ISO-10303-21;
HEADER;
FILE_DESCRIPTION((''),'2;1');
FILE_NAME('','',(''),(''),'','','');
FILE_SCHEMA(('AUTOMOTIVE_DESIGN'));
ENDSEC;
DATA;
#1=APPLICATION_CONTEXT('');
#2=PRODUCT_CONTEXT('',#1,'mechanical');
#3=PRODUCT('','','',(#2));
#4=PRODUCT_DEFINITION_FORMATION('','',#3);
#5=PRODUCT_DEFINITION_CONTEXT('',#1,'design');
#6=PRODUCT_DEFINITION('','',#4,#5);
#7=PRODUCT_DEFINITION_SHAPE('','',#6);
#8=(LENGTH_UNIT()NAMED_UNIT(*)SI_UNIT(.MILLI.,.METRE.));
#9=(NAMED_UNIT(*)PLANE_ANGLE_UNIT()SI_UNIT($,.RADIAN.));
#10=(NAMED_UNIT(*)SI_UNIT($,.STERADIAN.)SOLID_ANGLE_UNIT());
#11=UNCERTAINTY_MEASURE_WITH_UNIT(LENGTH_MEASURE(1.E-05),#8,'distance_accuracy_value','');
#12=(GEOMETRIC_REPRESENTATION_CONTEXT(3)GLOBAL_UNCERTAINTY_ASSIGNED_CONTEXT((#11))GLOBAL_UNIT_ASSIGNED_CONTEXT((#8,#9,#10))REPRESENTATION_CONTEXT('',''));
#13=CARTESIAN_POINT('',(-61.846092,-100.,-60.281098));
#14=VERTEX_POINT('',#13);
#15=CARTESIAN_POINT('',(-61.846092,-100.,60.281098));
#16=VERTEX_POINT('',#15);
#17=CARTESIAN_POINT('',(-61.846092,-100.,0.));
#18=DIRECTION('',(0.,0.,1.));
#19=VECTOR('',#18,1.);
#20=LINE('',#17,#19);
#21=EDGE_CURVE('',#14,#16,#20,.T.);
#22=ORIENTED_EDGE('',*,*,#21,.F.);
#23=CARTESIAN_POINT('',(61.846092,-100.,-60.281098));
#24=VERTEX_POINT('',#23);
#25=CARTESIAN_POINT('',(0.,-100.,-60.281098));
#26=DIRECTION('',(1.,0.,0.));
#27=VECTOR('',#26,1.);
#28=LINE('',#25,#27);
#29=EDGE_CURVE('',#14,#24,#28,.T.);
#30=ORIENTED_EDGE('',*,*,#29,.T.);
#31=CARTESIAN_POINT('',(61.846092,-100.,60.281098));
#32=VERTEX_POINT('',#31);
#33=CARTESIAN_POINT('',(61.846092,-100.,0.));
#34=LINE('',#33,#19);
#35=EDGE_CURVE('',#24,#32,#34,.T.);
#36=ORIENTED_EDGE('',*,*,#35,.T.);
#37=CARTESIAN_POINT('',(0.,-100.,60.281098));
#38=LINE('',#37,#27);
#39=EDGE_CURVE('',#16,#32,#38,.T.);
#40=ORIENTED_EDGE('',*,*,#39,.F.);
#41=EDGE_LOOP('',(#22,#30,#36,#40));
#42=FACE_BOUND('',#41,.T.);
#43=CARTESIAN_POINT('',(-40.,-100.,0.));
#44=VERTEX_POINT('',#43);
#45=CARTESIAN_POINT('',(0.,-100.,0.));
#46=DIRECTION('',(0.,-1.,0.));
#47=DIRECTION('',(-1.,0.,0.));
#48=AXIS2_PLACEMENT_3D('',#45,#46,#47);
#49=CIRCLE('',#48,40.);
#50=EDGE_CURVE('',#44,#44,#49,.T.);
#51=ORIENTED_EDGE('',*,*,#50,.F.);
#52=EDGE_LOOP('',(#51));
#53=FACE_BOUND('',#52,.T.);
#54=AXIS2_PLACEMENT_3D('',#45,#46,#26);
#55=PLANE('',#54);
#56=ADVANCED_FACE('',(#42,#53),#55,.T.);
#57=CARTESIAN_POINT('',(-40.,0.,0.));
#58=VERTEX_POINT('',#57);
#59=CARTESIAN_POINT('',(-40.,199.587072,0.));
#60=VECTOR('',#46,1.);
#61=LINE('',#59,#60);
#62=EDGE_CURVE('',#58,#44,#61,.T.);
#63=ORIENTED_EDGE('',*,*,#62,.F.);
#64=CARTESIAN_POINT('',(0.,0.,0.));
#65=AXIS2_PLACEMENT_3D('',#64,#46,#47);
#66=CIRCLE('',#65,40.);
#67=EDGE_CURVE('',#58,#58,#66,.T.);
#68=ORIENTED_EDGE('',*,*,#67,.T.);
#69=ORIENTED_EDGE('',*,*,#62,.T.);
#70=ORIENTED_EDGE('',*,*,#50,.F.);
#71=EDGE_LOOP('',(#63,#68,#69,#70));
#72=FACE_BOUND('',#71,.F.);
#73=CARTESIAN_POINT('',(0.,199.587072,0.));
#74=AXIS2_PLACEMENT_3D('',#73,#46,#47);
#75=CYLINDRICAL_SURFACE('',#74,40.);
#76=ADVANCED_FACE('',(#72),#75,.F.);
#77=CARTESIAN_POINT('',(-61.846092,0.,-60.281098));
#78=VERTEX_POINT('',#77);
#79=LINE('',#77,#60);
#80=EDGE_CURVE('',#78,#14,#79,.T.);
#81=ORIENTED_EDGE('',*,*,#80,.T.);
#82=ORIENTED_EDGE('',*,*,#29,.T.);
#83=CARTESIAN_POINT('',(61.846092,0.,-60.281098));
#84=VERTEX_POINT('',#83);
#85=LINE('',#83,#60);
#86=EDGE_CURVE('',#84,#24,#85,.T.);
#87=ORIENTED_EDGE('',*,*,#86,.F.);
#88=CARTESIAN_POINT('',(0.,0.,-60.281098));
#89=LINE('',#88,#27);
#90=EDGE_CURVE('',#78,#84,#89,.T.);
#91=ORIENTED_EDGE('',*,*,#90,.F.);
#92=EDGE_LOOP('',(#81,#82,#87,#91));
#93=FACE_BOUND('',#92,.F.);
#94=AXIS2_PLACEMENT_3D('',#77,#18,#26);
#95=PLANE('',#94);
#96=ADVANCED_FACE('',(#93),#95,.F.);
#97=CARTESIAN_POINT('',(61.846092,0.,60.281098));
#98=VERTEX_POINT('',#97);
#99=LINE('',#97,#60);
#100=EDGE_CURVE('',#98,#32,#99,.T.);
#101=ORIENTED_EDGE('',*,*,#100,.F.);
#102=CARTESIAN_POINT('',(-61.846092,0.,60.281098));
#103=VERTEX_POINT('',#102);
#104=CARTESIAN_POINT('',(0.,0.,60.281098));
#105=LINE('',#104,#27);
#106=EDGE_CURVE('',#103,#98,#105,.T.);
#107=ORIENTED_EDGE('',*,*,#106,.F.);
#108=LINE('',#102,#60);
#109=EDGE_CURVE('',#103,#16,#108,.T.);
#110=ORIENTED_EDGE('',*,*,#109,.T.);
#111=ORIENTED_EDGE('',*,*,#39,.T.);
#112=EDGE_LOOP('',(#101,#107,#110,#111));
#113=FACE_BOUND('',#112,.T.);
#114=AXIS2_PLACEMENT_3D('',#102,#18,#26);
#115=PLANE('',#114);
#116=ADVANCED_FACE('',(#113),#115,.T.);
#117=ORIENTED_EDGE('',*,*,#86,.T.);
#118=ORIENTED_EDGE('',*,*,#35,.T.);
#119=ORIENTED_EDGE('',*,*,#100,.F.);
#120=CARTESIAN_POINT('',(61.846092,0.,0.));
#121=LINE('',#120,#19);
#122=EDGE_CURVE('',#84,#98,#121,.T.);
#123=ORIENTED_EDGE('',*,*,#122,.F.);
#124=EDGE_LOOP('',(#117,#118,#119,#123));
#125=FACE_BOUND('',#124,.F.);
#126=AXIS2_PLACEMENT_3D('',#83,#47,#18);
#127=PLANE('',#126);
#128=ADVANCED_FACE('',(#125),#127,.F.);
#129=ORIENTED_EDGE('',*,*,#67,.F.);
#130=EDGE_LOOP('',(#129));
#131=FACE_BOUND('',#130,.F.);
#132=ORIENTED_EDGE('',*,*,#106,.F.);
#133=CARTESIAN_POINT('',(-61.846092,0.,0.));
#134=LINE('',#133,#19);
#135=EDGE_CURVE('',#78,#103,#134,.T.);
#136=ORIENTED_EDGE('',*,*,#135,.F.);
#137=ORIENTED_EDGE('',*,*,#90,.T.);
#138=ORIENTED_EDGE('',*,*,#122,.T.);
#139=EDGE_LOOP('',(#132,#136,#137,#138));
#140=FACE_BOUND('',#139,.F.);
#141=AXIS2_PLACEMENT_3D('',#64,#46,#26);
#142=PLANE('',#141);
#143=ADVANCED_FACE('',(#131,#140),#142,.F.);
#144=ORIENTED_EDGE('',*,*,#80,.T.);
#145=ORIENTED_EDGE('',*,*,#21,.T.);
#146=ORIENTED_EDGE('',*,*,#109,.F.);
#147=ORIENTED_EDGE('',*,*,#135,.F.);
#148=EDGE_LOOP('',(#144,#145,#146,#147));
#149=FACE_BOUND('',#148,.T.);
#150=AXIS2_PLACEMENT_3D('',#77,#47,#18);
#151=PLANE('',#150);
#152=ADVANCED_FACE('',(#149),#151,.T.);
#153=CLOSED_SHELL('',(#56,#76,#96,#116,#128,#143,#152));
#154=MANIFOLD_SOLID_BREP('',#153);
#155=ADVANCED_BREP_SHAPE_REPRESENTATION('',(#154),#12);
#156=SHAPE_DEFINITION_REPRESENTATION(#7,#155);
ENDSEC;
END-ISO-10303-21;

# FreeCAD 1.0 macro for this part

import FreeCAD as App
import Part
import Sketcher

V = App.Vector
Q = App.Units.Quantity

doc = App.newDocument("Part")
params = doc.addObject("Spreadsheet::Sheet", "Params")
for row, (alias, value) in enumerate([
    ("pad1_length", "100 mm"),
    ("sketch2_diameter", "80 mm"),
    ("hole_diameter", "80 mm"),
], start=1):
    params.set(f"A{row}", alias)
    params.set(f"B{row}", "=" + value)
    params.setAlias(f"B{row}", alias)

body = doc.addObject("PartDesign::Body", "Body")

# Sketch on XZ plane
sketch1 = body.newObject("Sketcher::SketchObject", "Sketch")
sketch1.AttachmentSupport = (doc.getObject("XZ_Plane"), [""])
sketch1.MapMode = "FlatFace"
sketch1.addGeometry([
    Part.LineSegment(V(-61.846092, 60.281098, 0), V(-61.846092, -60.281098, 0)),
    Part.LineSegment(V(-61.846092, -60.281098, 0), V(61.846092, -60.281098, 0)),
    Part.LineSegment(V(61.846092, -60.281098, 0), V(61.846092, 60.281098, 0)),
    Part.LineSegment(V(61.846092, 60.281098, 0), V(-61.846092, 60.281098, 0)),
], False)
sketch1.addConstraint([
    Sketcher.Constraint("Coincident", 0, 2, 1, 1),
    Sketcher.Constraint("Coincident", 1, 2, 2, 1),
    Sketcher.Constraint("Coincident", 2, 2, 3, 1),
    Sketcher.Constraint("Coincident", 3, 2, 0, 1),
    Sketcher.Constraint("Vertical", 0),
    Sketcher.Constraint("Horizontal", 1),
    Sketcher.Constraint("Vertical", 2),
    Sketcher.Constraint("Horizontal", 3),
    Sketcher.Constraint("Symmetric", 0, 2, 2, 2, -1, 1),
    Sketcher.Constraint("DistanceX", 1, 1, 1, 2, Q("123.692184 mm")),
    Sketcher.Constraint("DistanceY", 0, 2, 0, 1, Q("120.562196 mm")),
])
pad1 = body.newObject("PartDesign::Pad", "Pad")
pad1.Profile = sketch1
pad1.setExpression("Length", "Params.pad1_length")

# Sketch on XZ plane
sketch2 = body.newObject("Sketcher::SketchObject", "Sketch001")
sketch2.AttachmentSupport = (doc.getObject("XZ_Plane"), [""])
sketch2.MapMode = "FlatFace"
sketch2.addGeometry(Part.Circle(V(0, 0, 0), V(0, 0, 1), 40), False)
sketch2.addConstraint([
    Sketcher.Constraint("Coincident", 0, 3, -1, 1),
    Sketcher.Constraint("Diameter", 0, Q("80 mm")),
])
sketch2.setExpression("Constraints[1]", "Params.sketch2_diameter")
doc.recompute()
hole = body.newObject("PartDesign::Hole", "Hole")
hole.Profile = sketch2
hole.ThreadType = "None"
hole.setExpression("Diameter", "Params.hole_diameter")
hole.DepthType = "ThroughAll"
hole.Reversed = True

doc.recompute()
